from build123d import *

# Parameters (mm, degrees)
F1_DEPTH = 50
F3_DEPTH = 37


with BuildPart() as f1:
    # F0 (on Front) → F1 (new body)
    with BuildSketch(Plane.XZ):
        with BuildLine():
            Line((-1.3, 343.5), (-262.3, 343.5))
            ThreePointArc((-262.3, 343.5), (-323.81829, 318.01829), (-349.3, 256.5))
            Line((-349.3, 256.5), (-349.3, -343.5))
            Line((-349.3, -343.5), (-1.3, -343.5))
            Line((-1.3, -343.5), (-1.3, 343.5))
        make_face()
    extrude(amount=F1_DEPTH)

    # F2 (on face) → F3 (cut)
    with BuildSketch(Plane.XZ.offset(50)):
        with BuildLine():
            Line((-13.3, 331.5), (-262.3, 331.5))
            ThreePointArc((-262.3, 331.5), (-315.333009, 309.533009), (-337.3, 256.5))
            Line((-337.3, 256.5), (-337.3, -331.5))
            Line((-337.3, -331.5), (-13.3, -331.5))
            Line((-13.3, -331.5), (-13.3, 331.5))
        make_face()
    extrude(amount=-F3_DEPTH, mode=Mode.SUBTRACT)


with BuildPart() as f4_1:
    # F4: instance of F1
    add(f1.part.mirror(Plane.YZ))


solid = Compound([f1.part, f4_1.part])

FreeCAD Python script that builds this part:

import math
import FreeCAD as App
import Part
import Sketcher

V = App.Vector
Q = App.Units.Quantity

doc = App.newDocument("Part")
body = doc.addObject("PartDesign::Body", "Body")

# Sketch on XZ plane
sketch1 = doc.addObject("Sketcher::SketchObject", "Sketch")
body.addObject(sketch1)
sketch1.AttachmentSupport = (doc.XZ_Plane, [""])
sketch1.MapMode = "FlatFace"
sketch1.addGeometry([
    Part.LineSegment(V(-1.3, 343.5, 0), V(-262.3, 343.5, 0)),  # 0
    Part.ArcOfCircle(Part.Circle(V(-262.3, 256.5, 0), V(0, 0, 1), 87), math.radians(90), math.radians(180)),  # 1
    Part.LineSegment(V(-349.3, 256.5, 0), V(-349.3, -343.5, 0)),  # 2
    Part.LineSegment(V(-349.3, -343.5, 0), V(-1.3, -343.5, 0)),  # 3
    Part.LineSegment(V(-1.3, -343.5, 0), V(-1.3, 343.5, 0)),  # 4
], False)
sketch1.addConstraint([
    Sketcher.Constraint("Tangent", 0, 2, 1, 1),
    Sketcher.Constraint("Tangent", 1, 2, 2, 1),
    Sketcher.Constraint("Coincident", 2, 2, 3, 1),
    Sketcher.Constraint("Coincident", 3, 2, 4, 1),
    Sketcher.Constraint("Coincident", 4, 2, 0, 1),
    Sketcher.Constraint("Horizontal", 0),
    Sketcher.Constraint("Vertical", 2),
    Sketcher.Constraint("Horizontal", 3),
    Sketcher.Constraint("Vertical", 4),
    Sketcher.Constraint("Radius", 1, Q("87 mm")),
    Sketcher.Constraint("DistanceX", 0, 2, 0, 1, Q("261 mm")),
    Sketcher.Constraint("DistanceY", 2, 2, 2, 1, Q("600 mm")),
    Sketcher.Constraint("DistanceX", 1, 3, -1, 1, Q("262.3 mm")),
    Sketcher.Constraint("DistanceY", -1, 1, 1, 3, Q("256.5 mm")),
])
pad1 = doc.addObject("PartDesign::Pad", "Pad")
body.addObject(pad1)
pad1.Profile = sketch1
pad1.Length = 50

# Sketch on XZ plane
sketch2 = doc.addObject("Sketcher::SketchObject", "Sketch001")
body.addObject(sketch2)
sketch2.AttachmentSupport = (doc.XZ_Plane, [""])
sketch2.MapMode = "FlatFace"
sketch2.AttachmentOffset = App.Placement(V(0, 0, 50), App.Rotation())
sketch2.addGeometry([
    Part.LineSegment(V(-13.3, 331.5, 0), V(-262.3, 331.5, 0)),  # 0
    Part.ArcOfCircle(Part.Circle(V(-262.300001, 256.500001, 0), V(0, 0, 1), 74.999999), math.radians(89.999999), math.radians(180.000001)),  # 1
    Part.LineSegment(V(-337.3, 256.5, 0), V(-337.3, -331.5, 0)),  # 2
    Part.LineSegment(V(-337.3, -331.5, 0), V(-13.3, -331.5, 0)),  # 3
    Part.LineSegment(V(-13.3, -331.5, 0), V(-13.3, 331.5, 0)),  # 4
], False)
sketch2.addConstraint([
    Sketcher.Constraint("Tangent", 0, 2, 1, 1),
    Sketcher.Constraint("Tangent", 1, 2, 2, 1),
    Sketcher.Constraint("Coincident", 2, 2, 3, 1),
    Sketcher.Constraint("Coincident", 3, 2, 4, 1),
    Sketcher.Constraint("Coincident", 4, 2, 0, 1),
    Sketcher.Constraint("Horizontal", 0),
    Sketcher.Constraint("Vertical", 2),
    Sketcher.Constraint("Horizontal", 3),
    Sketcher.Constraint("Vertical", 4),
    Sketcher.Constraint("Radius", 1, Q("74.999999 mm")),
    Sketcher.Constraint("DistanceX", 0, 2, 0, 1, Q("249 mm")),
    Sketcher.Constraint("DistanceY", 2, 2, 2, 1, Q("588 mm")),
    Sketcher.Constraint("DistanceX", 1, 3, -1, 1, Q("262.300001 mm")),
    Sketcher.Constraint("DistanceY", -1, 1, 1, 3, Q("256.500001 mm")),
])
pocket1 = doc.addObject("PartDesign::Pocket", "Pocket")
body.addObject(pocket1)
pocket1.Profile = sketch2
pocket1.Length = 37
body2 = doc.addObject("PartDesign::Body", "Body001")
doc.recompute()

mirroring = doc.addObject("Part::Mirroring", "Mirroring")
mirroring.Source = body
mirroring.Base = V(0, 0, 0)
mirroring.Normal = V(1, 0, 0)
body2.BaseFeature = mirroring
doc.recompute()
mirroring.Visibility = False

doc.recompute()
